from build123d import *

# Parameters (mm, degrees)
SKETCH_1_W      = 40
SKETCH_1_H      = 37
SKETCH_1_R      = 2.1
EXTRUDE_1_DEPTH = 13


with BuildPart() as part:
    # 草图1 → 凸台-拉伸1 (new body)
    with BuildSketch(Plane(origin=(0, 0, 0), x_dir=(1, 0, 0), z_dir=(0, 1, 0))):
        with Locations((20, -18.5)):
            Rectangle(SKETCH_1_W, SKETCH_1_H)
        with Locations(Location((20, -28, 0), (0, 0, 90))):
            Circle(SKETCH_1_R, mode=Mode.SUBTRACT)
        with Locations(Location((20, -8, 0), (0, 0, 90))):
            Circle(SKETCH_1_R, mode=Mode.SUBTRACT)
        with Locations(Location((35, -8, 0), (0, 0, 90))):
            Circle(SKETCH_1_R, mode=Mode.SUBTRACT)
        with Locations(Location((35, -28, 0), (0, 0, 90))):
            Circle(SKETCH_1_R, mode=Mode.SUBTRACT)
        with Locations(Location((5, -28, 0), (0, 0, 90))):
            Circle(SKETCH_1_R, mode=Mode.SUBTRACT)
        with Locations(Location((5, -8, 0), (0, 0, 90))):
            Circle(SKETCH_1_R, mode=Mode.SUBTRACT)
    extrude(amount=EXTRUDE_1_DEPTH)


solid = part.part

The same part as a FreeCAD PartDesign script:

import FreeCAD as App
import Part
import Sketcher

V = App.Vector
Q = App.Units.Quantity


def add_polygon(sketch, points):
    """Adds a closed chain of lines whose ends are joined by coincident constraints."""
    first, n = sketch.GeometryCount, len(points)
    for a, b in zip(points, points[1:] + points[:1]):
        sketch.addGeometry(Part.LineSegment(App.Vector(*a, 0), App.Vector(*b, 0)), False)
    for i in range(n):
        sketch.addConstraint(Sketcher.Constraint("Coincident", first + i, 2, first + (i + 1) % n, 1))

doc = App.newDocument("Part")
body = doc.addObject("PartDesign::Body", "Body")

# Sketch on XZ plane
sketch1 = body.newObject("Sketcher::SketchObject", "Sketch")
sketch1.AttachmentSupport = (doc.getObject("XZ_Plane"), [""])
sketch1.MapMode = "FlatFace"
add_polygon(sketch1, [(0, 0), (0, 37), (40, 37), (40, 0)])  # lines 0-3
sketch1.addGeometry(Part.Circle(V(5, 28, 0), V(0, 0, 1), 2.1), False)  # 4
sketch1.addGeometry(Part.Circle(V(20, 28, 0), V(0, 0, 1), 2.1), False)  # 5
sketch1.addGeometry(Part.Circle(V(35, 28, 0), V(0, 0, 1), 2.1), False)  # 6
sketch1.addGeometry(Part.Circle(V(5, 8, 0), V(0, 0, 1), 2.1), False)  # 7
sketch1.addGeometry(Part.Circle(V(20, 8, 0), V(0, 0, 1), 2.1), False)  # 8
sketch1.addGeometry(Part.Circle(V(35, 8, 0), V(0, 0, 1), 2.1), False)  # 9
sketch1.addConstraint([
    Sketcher.Constraint("Vertical", 0),
    Sketcher.Constraint("Horizontal", 1),
    Sketcher.Constraint("Vertical", 2),
    Sketcher.Constraint("Horizontal", 3),
    Sketcher.Constraint("Coincident", 3, 2, -1, 1),
    Sketcher.Constraint("Equal", 4, 5),
    Sketcher.Constraint("Equal", 5, 6),
    Sketcher.Constraint("Equal", 6, 7),
    Sketcher.Constraint("Equal", 7, 8),
    Sketcher.Constraint("Equal", 8, 9),
    Sketcher.Constraint("Horizontal", 4, 3, 5, 3),
    Sketcher.Constraint("Horizontal", 5, 3, 6, 3),
    Sketcher.Constraint("Horizontal", 7, 3, 8, 3),
    Sketcher.Constraint("Horizontal", 8, 3, 9, 3),
    Sketcher.Constraint("Vertical", 4, 3, 7, 3),
    Sketcher.Constraint("Vertical", 5, 3, 8, 3),
    Sketcher.Constraint("Vertical", 6, 3, 9, 3),
    Sketcher.Constraint("Diameter", 4, Q("4.2 mm")),
    Sketcher.Constraint("DistanceX", 1, 1, 1, 2, Q("40 mm")),
    Sketcher.Constraint("DistanceY", 0, 1, 0, 2, Q("37 mm")),
    Sketcher.Constraint("DistanceX", -1, 1, 4, 3, Q("5 mm")),
    Sketcher.Constraint("DistanceY", -1, 1, 4, 3, Q("28 mm")),
    Sketcher.Constraint("DistanceX", -1, 1, 5, 3, Q("20 mm")),
    Sketcher.Constraint("DistanceX", -1, 1, 6, 3, Q("35 mm")),
    Sketcher.Constraint("DistanceY", -1, 1, 7, 3, Q("8 mm")),
])
pad1 = body.newObject("PartDesign::Pad", "Pad")
pad1.Profile = sketch1
pad1.Length = 13
pad1.Reversed = True

doc.recompute()
